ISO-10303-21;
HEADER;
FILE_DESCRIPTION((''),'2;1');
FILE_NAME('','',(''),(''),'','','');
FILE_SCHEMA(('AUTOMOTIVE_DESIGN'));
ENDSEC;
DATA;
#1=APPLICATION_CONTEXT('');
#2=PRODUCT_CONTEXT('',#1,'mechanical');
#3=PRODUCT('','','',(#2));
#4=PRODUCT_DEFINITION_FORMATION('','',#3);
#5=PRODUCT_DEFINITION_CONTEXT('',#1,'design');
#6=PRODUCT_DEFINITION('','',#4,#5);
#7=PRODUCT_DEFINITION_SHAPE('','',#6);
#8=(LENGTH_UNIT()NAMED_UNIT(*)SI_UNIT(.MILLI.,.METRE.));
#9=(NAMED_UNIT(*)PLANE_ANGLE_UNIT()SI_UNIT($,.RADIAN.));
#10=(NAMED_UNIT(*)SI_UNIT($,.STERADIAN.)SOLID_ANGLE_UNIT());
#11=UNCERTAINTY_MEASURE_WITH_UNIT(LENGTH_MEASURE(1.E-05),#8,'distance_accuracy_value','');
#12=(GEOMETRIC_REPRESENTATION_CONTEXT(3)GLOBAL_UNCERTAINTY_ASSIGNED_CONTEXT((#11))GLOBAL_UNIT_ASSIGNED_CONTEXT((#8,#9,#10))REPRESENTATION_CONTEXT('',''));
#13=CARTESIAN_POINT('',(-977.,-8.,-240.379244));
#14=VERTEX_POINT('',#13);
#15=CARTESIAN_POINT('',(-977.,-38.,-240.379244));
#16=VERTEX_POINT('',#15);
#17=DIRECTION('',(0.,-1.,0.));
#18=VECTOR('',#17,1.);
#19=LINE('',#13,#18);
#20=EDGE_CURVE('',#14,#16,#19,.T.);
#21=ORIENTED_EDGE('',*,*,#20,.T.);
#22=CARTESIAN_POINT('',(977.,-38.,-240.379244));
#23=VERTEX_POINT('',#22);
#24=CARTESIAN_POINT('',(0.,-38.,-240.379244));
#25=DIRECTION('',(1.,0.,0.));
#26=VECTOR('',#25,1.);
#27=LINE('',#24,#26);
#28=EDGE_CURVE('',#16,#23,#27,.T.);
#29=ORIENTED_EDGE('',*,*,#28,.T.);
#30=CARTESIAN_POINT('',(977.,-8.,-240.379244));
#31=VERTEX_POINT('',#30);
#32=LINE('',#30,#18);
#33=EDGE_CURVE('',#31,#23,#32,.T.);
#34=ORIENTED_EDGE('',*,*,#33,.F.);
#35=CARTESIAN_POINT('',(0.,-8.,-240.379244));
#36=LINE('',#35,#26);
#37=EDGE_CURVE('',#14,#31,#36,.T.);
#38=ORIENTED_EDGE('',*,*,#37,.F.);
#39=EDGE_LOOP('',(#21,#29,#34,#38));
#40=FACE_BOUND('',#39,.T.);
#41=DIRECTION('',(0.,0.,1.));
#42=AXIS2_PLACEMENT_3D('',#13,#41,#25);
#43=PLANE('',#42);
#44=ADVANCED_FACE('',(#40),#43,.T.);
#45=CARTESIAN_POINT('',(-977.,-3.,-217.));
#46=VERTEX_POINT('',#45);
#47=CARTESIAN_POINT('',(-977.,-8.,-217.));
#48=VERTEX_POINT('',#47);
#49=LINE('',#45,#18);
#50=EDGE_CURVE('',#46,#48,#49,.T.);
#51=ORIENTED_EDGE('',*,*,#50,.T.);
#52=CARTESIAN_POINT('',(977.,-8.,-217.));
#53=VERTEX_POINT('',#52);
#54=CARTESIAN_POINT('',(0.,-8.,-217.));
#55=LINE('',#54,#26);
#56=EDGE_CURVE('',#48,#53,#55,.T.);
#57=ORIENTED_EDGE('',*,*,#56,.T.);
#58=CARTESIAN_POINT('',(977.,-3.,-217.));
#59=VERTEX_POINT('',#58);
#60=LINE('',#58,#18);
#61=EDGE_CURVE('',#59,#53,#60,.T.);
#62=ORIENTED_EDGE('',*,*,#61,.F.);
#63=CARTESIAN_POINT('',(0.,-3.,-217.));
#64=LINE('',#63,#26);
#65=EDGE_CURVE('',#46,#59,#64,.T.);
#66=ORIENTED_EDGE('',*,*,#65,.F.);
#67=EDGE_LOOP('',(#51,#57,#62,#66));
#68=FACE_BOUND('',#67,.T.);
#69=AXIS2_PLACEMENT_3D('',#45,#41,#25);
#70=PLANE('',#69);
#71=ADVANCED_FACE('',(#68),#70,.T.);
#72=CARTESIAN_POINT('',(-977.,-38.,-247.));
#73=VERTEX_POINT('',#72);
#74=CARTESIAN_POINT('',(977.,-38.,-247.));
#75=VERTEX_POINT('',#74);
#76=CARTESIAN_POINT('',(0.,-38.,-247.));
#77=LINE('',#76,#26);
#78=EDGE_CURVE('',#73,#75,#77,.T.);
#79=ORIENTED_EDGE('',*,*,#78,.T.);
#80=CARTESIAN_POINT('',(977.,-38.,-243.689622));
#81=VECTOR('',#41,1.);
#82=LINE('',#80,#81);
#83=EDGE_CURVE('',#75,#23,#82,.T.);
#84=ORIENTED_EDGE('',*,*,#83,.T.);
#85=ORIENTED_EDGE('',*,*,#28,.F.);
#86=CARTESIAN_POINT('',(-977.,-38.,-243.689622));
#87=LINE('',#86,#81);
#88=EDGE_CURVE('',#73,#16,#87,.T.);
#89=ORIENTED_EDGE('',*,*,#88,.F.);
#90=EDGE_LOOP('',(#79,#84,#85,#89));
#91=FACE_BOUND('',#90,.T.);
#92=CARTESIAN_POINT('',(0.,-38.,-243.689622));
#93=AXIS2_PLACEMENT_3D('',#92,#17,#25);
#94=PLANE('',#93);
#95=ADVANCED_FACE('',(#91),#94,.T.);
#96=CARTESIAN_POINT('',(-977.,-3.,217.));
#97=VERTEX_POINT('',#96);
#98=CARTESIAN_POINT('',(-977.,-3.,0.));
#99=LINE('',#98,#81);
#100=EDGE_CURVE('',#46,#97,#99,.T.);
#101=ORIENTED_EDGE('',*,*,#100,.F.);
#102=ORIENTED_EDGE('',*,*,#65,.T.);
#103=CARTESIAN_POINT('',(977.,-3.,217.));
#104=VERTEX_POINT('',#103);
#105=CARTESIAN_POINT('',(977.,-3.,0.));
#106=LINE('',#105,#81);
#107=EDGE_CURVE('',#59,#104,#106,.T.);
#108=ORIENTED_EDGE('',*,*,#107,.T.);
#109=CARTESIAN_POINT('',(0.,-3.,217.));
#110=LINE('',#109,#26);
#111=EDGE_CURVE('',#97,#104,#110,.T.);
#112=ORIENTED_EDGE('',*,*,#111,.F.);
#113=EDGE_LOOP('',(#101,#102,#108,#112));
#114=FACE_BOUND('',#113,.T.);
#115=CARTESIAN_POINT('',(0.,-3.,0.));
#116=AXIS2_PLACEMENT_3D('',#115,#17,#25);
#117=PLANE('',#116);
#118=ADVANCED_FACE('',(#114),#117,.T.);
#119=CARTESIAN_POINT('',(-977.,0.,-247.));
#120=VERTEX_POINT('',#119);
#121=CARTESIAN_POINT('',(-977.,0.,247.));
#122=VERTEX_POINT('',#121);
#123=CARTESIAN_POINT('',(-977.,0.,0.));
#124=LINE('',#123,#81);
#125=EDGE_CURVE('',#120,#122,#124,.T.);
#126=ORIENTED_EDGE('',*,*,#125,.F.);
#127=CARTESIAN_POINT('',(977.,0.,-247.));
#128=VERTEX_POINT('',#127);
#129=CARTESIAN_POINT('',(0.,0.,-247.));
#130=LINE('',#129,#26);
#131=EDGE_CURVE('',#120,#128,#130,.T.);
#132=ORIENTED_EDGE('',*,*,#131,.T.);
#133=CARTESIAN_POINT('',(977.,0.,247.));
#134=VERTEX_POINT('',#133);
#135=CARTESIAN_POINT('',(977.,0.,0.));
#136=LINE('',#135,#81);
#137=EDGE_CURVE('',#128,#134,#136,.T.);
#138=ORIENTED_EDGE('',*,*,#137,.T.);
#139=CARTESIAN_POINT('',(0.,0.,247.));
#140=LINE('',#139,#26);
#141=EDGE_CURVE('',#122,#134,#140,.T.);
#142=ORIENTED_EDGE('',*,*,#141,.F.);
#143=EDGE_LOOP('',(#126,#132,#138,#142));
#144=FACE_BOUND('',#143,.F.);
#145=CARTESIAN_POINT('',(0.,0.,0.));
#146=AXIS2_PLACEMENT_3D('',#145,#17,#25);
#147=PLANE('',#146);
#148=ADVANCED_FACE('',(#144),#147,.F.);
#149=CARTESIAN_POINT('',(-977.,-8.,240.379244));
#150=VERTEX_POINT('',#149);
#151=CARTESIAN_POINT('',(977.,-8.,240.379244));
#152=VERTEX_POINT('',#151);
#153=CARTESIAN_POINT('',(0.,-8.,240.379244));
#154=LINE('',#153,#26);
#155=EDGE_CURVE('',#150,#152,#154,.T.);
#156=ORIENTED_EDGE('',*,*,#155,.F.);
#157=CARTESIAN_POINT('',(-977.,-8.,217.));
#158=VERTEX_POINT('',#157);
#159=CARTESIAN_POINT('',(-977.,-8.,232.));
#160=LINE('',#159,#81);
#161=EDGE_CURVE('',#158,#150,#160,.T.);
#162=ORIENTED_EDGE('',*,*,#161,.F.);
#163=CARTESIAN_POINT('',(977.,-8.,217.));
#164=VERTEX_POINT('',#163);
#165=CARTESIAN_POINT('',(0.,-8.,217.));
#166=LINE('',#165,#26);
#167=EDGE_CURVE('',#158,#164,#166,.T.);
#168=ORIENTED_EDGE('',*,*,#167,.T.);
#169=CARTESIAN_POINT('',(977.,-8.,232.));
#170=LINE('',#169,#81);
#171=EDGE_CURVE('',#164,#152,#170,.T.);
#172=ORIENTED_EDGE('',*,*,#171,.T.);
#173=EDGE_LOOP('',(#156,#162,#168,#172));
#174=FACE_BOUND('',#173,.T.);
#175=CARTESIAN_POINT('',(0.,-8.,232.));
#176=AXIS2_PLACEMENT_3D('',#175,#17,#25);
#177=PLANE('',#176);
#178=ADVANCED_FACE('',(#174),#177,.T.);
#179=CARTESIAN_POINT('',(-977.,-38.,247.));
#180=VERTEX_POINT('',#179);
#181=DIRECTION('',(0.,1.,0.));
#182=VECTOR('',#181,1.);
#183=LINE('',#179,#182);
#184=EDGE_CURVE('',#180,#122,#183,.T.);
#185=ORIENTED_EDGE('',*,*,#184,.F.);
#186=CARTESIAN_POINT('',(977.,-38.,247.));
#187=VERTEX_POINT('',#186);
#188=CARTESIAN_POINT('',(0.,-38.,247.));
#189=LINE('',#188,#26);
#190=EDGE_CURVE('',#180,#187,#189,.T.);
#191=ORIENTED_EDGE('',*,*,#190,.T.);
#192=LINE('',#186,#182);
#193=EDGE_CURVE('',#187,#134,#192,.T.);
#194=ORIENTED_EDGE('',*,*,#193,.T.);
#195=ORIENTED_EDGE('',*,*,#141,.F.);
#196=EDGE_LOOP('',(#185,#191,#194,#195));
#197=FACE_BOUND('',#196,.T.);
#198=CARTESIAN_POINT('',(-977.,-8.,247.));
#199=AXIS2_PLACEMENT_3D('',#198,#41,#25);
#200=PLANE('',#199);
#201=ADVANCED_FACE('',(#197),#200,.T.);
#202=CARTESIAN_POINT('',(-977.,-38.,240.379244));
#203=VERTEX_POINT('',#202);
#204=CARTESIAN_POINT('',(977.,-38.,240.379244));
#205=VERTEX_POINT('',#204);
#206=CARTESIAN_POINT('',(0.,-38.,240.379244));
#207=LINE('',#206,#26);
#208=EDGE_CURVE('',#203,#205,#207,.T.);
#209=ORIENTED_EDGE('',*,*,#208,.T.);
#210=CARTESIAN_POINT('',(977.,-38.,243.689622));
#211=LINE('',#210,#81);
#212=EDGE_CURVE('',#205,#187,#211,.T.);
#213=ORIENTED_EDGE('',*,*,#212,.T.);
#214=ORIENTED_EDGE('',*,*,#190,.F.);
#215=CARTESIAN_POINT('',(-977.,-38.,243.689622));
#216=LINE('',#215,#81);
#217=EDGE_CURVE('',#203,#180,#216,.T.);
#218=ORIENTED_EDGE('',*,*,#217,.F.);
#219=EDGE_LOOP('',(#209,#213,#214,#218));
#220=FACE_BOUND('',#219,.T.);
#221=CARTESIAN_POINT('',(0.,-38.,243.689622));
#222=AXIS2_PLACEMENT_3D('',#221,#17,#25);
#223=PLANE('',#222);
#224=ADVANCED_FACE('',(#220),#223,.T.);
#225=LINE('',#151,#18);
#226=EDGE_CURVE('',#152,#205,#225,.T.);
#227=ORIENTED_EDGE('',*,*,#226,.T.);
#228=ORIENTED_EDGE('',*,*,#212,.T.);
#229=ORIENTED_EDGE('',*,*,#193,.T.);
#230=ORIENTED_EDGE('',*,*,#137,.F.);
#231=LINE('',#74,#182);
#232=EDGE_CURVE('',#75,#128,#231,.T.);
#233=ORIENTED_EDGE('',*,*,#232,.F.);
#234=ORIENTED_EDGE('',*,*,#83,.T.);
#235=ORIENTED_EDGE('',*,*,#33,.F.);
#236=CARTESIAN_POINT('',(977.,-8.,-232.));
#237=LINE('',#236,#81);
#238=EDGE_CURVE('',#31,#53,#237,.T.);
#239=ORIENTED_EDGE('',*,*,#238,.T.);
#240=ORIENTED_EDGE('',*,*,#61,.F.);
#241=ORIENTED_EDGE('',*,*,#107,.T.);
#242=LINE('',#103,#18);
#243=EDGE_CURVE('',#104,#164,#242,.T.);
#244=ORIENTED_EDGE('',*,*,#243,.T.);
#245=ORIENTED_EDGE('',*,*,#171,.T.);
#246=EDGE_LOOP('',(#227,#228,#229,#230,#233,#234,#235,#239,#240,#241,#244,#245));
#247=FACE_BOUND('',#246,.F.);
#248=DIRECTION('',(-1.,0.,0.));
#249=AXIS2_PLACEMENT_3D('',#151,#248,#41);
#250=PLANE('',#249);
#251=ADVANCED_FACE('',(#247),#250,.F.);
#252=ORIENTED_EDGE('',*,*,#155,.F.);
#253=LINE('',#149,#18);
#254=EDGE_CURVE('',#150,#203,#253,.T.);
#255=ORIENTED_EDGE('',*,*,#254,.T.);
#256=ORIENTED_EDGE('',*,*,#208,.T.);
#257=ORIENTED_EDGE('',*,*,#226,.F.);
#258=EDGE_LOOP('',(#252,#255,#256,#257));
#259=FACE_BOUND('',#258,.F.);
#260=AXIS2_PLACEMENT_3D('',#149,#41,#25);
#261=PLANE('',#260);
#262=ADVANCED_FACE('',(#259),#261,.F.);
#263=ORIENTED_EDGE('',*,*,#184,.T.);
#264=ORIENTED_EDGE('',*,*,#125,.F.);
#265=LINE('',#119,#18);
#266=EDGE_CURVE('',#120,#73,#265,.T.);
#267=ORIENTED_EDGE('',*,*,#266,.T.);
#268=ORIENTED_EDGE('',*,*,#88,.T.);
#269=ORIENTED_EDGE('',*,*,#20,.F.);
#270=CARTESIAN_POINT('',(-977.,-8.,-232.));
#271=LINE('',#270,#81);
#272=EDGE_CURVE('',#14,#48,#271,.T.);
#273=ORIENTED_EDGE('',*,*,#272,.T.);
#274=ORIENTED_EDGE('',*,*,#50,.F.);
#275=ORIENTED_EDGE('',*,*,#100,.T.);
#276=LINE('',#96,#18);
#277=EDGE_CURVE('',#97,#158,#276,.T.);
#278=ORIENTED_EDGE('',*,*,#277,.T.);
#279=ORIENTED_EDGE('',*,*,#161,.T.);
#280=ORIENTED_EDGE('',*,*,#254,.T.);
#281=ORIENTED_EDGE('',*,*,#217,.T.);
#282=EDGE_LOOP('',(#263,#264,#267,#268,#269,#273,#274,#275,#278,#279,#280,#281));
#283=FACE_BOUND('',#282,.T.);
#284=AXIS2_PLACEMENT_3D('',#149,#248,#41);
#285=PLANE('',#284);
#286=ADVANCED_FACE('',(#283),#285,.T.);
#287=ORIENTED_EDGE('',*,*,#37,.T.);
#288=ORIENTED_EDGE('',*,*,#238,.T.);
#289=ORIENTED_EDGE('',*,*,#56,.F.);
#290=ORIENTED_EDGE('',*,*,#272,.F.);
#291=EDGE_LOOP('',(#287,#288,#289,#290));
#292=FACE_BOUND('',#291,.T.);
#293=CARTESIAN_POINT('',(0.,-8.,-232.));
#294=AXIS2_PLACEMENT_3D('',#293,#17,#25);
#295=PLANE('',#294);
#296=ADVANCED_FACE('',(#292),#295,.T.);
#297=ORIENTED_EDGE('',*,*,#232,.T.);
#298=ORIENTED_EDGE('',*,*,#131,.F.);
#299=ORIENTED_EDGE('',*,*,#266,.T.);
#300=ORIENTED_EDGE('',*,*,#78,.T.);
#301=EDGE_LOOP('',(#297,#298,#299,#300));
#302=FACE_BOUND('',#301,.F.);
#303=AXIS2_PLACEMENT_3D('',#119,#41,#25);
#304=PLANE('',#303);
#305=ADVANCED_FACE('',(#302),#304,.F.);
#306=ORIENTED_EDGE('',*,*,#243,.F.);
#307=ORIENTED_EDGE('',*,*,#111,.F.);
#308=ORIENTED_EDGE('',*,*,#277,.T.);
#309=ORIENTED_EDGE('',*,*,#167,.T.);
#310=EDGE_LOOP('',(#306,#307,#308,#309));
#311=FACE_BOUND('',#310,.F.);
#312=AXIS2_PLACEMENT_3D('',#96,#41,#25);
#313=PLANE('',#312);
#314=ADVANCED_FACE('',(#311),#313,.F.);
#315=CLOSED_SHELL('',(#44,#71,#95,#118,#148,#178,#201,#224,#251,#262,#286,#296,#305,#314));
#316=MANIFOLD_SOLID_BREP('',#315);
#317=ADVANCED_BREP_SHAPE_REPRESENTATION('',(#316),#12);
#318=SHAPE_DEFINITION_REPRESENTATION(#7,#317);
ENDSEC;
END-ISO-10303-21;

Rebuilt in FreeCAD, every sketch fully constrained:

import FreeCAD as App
import Part
import Sketcher
Q = App.Units.Quantity


def add_polygon(sketch, points):
    """Adds a closed chain of lines whose ends are joined by coincident constraints."""
    first, n = sketch.GeometryCount, len(points)
    for a, b in zip(points, points[1:] + points[:1]):
        sketch.addGeometry(Part.LineSegment(App.Vector(*a, 0), App.Vector(*b, 0)), False)
    for i in range(n):
        sketch.addConstraint(Sketcher.Constraint("Coincident", first + i, 2, first + (i + 1) % n, 1))

doc = App.newDocument("Part")
params = doc.addObject("Spreadsheet::Sheet", "Params")
for row, (alias, value) in enumerate([
    ("sketch1_width", "1954 mm"),
    ("sketch1_height", "494 mm"),
    ("pad1_length", "3 mm"),
    ("sketch2_width", "1954 mm"),
    ("sketch2_height", "30 mm"),
    ("pad2_length", "5 mm"),
    ("sketch3_width", "1954 mm"),
    ("pad3_length", "30 mm"),
], start=1):
    params.set(f"A{row}", alias)
    params.set(f"B{row}", "=" + value)
    params.setAlias(f"B{row}", alias)

body = doc.addObject("PartDesign::Body", "Body")

# Sketch on XZ plane
sketch1 = body.newObject("Sketcher::SketchObject", "Sketch")
sketch1.AttachmentSupport = (doc.getObject("XZ_Plane"), [""])
sketch1.MapMode = "FlatFace"
add_polygon(sketch1, [(-977, 247), (-977, -247), (977, -247), (977, 247)])  # lines 0-3
sketch1.addConstraint([
    Sketcher.Constraint("Vertical", 0),
    Sketcher.Constraint("Horizontal", 1),
    Sketcher.Constraint("Vertical", 2),
    Sketcher.Constraint("Horizontal", 3),
    Sketcher.Constraint("Symmetric", 0, 2, 2, 2, -1, 1),
    Sketcher.Constraint("DistanceX", 1, 1, 1, 2, Q("1954 mm")),
    Sketcher.Constraint("DistanceY", 0, 2, 0, 1, Q("494 mm")),
])
sketch1.setExpression("Constraints[9]", "Params.sketch1_width")
sketch1.setExpression("Constraints[10]", "Params.sketch1_height")
pad1 = body.newObject("PartDesign::Pad", "Pad")
pad1.Profile = sketch1
pad1.setExpression("Length", "Params.pad1_length")

# Sketch on XZ plane
sketch2 = body.newObject("Sketcher::SketchObject", "Sketch001")
sketch2.AttachmentSupport = (doc.getObject("XZ_Plane"), [""])
sketch2.MapMode = "FlatFace"
sketch2.AttachmentOffset = App.Placement(App.Vector(0, 0, 3), App.Rotation())
add_polygon(sketch2, [(-977, 247), (-977, 217), (977, 217), (977, 247)])  # lines 0-3
add_polygon(sketch2, [(-977, -217), (-977, -247), (977, -247), (977, -217)])  # lines 4-7
sketch2.addConstraint([
    Sketcher.Constraint("Vertical", 0),
    Sketcher.Constraint("Horizontal", 1),
    Sketcher.Constraint("Vertical", 2),
    Sketcher.Constraint("Horizontal", 3),
    Sketcher.Constraint("Vertical", 4),
    Sketcher.Constraint("Horizontal", 5),
    Sketcher.Constraint("Vertical", 6),
    Sketcher.Constraint("Horizontal", 7),
    Sketcher.Constraint("Symmetric", 2, 2, 4, 2, -1, 1),
    Sketcher.Constraint("Symmetric", 0, 2, 6, 2, -1, 1),
    Sketcher.Constraint("Vertical", 3, 2, 4, 2),
    Sketcher.Constraint("DistanceX", 1, 1, 1, 2, Q("1954 mm")),
    Sketcher.Constraint("DistanceY", 0, 2, 0, 1, Q("30 mm")),
    Sketcher.Constraint("DistanceY", -1, 1, 0, 2, Q("217 mm")),
])
sketch2.setExpression("Constraints[19]", "Params.sketch2_width")
sketch2.setExpression("Constraints[20]", "Params.sketch2_height")
pad2 = body.newObject("PartDesign::Pad", "Pad001")
pad2.Profile = sketch2
pad2.setExpression("Length", "Params.pad2_length")

# Sketch on XZ plane
sketch3 = body.newObject("Sketcher::SketchObject", "Sketch002")
sketch3.AttachmentSupport = (doc.getObject("XZ_Plane"), [""])
sketch3.MapMode = "FlatFace"
sketch3.AttachmentOffset = App.Placement(App.Vector(0, 0, 8), App.Rotation())
add_polygon(sketch3, [(-977, 247), (-977, 240), (977, 240), (977, 247)])  # lines 0-3
add_polygon(sketch3, [(-977, -240), (-977, -247), (977, -247), (977, -240)])  # lines 4-7
sketch3.addConstraint([
    Sketcher.Constraint("Vertical", 0),
    Sketcher.Constraint("Horizontal", 1),
    Sketcher.Constraint("Vertical", 2),
    Sketcher.Constraint("Horizontal", 3),
    Sketcher.Constraint("Vertical", 4),
    Sketcher.Constraint("Horizontal", 5),
    Sketcher.Constraint("Vertical", 6),
    Sketcher.Constraint("Horizontal", 7),
    Sketcher.Constraint("Symmetric", 2, 2, 4, 2, -1, 1),
    Sketcher.Constraint("Symmetric", 0, 2, 6, 2, -1, 1),
    Sketcher.Constraint("Vertical", 3, 2, 4, 2),
    Sketcher.Constraint("DistanceX", 1, 1, 1, 2, Q("1954 mm")),
    Sketcher.Constraint("DistanceY", -1, 1, 2, 2, Q("247 mm")),
    Sketcher.Constraint("DistanceY", 0, 2, 0, 1, Q("6.620756 mm")),
])
sketch3.setExpression("Constraints[19]", "Params.sketch3_width")
pad3 = body.newObject("PartDesign::Pad", "Pad002")
pad3.Profile = sketch3
pad3.setExpression("Length", "Params.pad3_length")

doc.recompute()
